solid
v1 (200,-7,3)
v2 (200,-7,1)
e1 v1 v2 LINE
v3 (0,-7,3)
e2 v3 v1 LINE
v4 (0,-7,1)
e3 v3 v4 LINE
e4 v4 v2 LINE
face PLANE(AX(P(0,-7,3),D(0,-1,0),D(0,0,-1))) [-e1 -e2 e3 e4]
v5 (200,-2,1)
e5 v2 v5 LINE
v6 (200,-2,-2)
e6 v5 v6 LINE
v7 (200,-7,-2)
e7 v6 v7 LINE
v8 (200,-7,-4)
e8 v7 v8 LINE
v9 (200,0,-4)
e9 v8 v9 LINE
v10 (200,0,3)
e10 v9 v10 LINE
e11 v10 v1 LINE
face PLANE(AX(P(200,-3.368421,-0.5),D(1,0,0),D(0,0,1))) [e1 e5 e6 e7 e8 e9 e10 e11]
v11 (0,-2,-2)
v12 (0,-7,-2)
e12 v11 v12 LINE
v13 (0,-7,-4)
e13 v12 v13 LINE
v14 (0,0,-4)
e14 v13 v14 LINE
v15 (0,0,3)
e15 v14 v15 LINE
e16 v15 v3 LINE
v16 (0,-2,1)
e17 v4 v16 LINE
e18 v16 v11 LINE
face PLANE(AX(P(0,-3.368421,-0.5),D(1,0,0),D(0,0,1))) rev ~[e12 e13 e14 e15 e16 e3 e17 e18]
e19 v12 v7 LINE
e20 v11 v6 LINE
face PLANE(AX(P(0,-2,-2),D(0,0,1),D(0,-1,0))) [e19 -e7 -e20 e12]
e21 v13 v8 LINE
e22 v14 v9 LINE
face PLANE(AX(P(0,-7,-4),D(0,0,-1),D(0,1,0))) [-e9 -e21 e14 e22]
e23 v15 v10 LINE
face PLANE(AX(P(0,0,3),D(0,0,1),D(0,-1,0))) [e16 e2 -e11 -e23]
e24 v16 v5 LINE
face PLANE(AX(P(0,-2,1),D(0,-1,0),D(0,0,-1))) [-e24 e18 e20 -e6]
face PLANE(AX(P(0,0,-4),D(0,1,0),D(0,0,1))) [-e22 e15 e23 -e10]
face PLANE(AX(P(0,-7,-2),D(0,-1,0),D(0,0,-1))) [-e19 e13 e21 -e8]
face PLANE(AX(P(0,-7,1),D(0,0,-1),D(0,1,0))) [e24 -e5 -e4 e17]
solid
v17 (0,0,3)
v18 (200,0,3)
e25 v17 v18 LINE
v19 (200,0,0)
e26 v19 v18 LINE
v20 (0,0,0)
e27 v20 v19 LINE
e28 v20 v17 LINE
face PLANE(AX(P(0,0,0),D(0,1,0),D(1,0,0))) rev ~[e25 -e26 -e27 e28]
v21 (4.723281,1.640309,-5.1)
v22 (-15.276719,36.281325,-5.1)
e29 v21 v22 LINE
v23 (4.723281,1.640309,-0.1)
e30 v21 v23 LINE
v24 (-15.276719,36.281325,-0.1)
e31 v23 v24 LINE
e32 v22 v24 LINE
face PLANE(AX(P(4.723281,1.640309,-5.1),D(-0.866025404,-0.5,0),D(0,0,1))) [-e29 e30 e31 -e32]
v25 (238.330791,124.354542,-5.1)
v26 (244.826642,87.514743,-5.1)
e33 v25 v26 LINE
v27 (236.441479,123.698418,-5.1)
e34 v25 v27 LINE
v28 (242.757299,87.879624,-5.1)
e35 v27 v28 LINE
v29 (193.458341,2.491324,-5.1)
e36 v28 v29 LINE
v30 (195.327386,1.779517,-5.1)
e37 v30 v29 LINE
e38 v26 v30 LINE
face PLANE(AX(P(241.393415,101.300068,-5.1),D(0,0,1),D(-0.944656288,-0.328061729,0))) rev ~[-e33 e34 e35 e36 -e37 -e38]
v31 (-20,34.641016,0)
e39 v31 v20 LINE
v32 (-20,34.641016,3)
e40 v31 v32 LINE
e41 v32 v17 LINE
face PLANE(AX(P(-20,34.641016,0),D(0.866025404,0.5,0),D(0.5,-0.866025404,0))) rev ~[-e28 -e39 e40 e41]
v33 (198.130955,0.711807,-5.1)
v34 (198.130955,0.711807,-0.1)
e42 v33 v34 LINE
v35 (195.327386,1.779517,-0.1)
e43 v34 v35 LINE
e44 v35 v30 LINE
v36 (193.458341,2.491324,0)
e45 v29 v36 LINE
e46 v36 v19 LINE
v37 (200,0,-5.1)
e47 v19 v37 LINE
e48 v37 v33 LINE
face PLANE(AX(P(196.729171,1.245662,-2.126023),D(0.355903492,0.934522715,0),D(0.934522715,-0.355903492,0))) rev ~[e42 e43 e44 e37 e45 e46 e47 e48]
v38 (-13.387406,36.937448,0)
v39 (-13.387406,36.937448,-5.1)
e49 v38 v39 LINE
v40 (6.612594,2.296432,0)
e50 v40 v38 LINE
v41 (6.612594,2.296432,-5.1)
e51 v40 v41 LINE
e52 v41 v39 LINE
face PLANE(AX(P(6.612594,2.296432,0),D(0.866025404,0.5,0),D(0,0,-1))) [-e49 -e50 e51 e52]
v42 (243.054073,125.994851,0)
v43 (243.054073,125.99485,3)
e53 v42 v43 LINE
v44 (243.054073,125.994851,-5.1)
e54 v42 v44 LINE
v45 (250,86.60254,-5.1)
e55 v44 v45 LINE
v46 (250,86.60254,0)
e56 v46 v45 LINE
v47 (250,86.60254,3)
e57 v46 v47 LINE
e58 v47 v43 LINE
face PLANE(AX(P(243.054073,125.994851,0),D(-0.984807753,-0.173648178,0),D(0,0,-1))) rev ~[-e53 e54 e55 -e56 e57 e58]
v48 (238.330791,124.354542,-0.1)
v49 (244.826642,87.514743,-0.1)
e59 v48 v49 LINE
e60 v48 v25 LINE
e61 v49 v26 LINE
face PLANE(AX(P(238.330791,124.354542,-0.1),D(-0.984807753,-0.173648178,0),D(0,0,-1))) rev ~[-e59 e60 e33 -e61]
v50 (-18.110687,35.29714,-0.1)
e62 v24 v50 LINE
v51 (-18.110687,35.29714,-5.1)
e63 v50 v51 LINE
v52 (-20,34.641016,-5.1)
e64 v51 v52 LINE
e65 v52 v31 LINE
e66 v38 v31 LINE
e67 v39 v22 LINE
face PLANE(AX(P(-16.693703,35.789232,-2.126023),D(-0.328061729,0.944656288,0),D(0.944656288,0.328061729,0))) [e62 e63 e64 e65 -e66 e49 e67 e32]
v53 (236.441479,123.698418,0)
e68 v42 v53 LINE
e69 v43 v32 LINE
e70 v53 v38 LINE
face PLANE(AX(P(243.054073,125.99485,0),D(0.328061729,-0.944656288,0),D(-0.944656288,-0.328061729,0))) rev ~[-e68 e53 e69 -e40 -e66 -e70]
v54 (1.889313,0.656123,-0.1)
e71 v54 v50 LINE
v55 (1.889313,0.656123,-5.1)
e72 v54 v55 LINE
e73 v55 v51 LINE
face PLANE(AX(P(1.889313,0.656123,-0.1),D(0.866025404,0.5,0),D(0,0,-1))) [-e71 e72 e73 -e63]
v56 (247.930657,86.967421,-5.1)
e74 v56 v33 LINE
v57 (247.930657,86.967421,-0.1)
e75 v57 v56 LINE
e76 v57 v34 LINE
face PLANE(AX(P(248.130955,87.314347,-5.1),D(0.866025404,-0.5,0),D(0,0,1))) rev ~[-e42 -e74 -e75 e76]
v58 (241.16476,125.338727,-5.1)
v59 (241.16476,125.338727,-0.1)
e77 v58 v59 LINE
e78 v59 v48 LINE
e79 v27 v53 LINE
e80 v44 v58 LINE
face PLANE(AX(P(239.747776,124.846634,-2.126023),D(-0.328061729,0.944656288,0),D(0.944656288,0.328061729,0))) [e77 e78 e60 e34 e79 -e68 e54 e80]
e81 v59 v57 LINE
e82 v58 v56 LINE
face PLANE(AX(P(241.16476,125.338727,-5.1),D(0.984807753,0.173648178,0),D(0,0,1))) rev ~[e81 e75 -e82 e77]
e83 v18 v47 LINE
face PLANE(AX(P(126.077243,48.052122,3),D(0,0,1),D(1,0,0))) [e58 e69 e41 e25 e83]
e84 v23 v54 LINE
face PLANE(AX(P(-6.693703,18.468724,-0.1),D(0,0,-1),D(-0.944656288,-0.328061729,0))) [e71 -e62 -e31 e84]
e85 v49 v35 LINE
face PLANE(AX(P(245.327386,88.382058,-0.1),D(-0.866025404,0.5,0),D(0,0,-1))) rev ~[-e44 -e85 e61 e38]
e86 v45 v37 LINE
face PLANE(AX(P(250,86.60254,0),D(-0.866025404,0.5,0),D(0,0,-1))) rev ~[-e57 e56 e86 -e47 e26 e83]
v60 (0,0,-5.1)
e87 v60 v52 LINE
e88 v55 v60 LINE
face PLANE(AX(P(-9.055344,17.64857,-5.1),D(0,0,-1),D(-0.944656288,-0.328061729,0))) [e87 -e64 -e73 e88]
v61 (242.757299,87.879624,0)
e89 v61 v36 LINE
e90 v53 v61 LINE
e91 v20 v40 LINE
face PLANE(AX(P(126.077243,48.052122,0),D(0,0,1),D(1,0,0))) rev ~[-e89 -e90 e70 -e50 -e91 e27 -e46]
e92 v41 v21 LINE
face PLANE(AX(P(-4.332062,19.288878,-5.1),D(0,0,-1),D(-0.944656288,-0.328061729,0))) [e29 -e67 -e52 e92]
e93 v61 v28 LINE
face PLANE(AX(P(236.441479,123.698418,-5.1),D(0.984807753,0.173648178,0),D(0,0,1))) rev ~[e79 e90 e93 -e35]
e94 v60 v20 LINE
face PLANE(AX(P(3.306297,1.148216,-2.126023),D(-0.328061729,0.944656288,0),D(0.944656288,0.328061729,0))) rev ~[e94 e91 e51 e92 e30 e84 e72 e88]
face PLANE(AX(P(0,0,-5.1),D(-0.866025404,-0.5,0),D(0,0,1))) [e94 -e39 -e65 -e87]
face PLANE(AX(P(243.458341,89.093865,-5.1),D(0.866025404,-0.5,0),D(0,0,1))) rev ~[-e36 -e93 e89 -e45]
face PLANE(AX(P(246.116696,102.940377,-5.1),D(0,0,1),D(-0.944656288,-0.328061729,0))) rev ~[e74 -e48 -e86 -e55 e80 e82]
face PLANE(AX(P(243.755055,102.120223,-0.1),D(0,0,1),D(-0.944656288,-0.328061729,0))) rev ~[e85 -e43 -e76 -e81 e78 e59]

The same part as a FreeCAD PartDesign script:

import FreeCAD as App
import Part
import Sketcher
from FreeCAD import Vector
Q = App.Units.Quantity


def add_polygon(sketch, points):
    """Adds a closed chain of lines whose ends are joined by coincident constraints."""
    first, n = sketch.GeometryCount, len(points)
    for a, b in zip(points, points[1:] + points[:1]):
        sketch.addGeometry(Part.LineSegment(App.Vector(*a, 0), App.Vector(*b, 0)), False)
    for i in range(n):
        sketch.addConstraint(Sketcher.Constraint("Coincident", first + i, 2, first + (i + 1) % n, 1))

doc = App.newDocument("Part")
body = doc.addObject("PartDesign::Body", "Body")

sketch1 = body.newObject("Sketcher::SketchObject", "Sketch")
sketch1.AttachmentSupport = (doc.getObject("XY_Plane"), [""])
sketch1.MapMode = "FlatFace"
add_polygon(sketch1, [(243, 126), (-20, 35), (0, 0), (200, 0), (250, 87)])
sketch1.addConstraint([
    Sketcher.Constraint("Horizontal", 2),
    Sketcher.Constraint("Coincident", 1, 2, -1, 1),
    Sketcher.Constraint("Equal", 1, 4),
    Sketcher.Constraint("DistanceX", 2, 1, 2, 2, 200.0),
    Sketcher.Constraint("Angle", 1, Q("-60 deg")),
    Sketcher.Constraint("Angle", 3, Q("60 deg")),
    Sketcher.Constraint("Angle", 4, Q("100 deg")),
    Sketcher.Constraint("Distance", 1, 40.0),
    Sketcher.Constraint("Distance", 3, 100.0),
])
pad1 = body.newObject("PartDesign::Pad", "Pad")
pad1.Profile = sketch1
pad1.Length = 3

sketch2 = body.newObject("Sketcher::SketchObject", "Sketch001")
sketch2.Placement = App.Placement(Vector(-12.887934, 37.110906, 0), App.Rotation(Vector(-0.944656288, -0.328061729, 0), Vector(0, 0, 1), Vector(-0.328061729, 0.944656288, 0), "ZXY"))
add_polygon(sketch2, [(7.5, -5.1), (7.5, 0), (0.5, 0), (0.5, -5.1), (2.5, -5.1), (2.5, -0.1), (5.5, -0.1), (5.5, -5.1)])
sketch2.addConstraint([
    Sketcher.Constraint("Vertical", 0),
    Sketcher.Constraint("Horizontal", 1),
    Sketcher.Constraint("Vertical", 2),
    Sketcher.Constraint("Horizontal", 3),
    Sketcher.Constraint("Vertical", 4),
    Sketcher.Constraint("Horizontal", 5),
    Sketcher.Constraint("Vertical", 6),
    Sketcher.Constraint("Horizontal", 7),
    Sketcher.Constraint("PointOnObject", 0, 2, -1),
    Sketcher.Constraint("Horizontal", 3, 2, 6, 2),
    Sketcher.Constraint("Equal", 3, 7),
    Sketcher.Constraint("DistanceX", 1, 2, 1, 1, 7.0),
    Sketcher.Constraint("DistanceX", 3, 1, 3, 2, 2.0),
    Sketcher.Constraint("DistanceY", 4, 1, 4, 2, 5.0),
    Sketcher.Constraint("DistanceY", 0, 1, 0, 2, 5.1),
    Sketcher.Constraint("DistanceX", -1, 1, 0, 2, 7.528734),
])

sketch3 = body.newObject("Sketcher::SketchObject", "Sketch002")
sketch3.Placement = App.Placement(Vector(0, 0, 0), App.Rotation(Vector(-0.5, 0.866025404, 0), Vector(0, 0, 1), Vector(0.866025404, 0.5, 0), "ZXY"))
sketch3.addGeometry(Part.LineSegment(Vector(0, 0, 0), Vector(40, 0, 0)), False)
sketch3.addConstraint([
    Sketcher.Constraint("Horizontal", 0),
    Sketcher.Constraint("Coincident", 0, 1, -1, 1),
    Sketcher.Constraint("DistanceX", 0, 1, 0, 2, 40.0),
])
doc.recompute()

additivepipe = body.newObject("PartDesign::AdditivePipe", "AdditivePipe")
additivepipe.Profile = sketch2
additivepipe.Spine = (sketch3, ["Edge1"])

sketch4 = body.newObject("Sketcher::SketchObject", "Sketch003")
sketch4.Placement = App.Placement(Vector(-12.887934, 37.110906, 0), App.Rotation(Vector(-0.944656288, -0.328061729, 0), Vector(0, 0, 1), Vector(-0.328061729, 0.944656288, 0), "ZXY"))
add_polygon(sketch4, [(-263.9, 0), (-270.9, 0), (-270.9, -5.1), (-268.9, -5.1), (-268.9, -0.1), (-265.9, -0.1), (-265.9, -5.1), (-263.9, -5.1)])
sketch4.addConstraint([
    Sketcher.Constraint("Horizontal", 0),
    Sketcher.Constraint("Vertical", 1),
    Sketcher.Constraint("Horizontal", 2),
    Sketcher.Constraint("Vertical", 3),
    Sketcher.Constraint("Horizontal", 4),
    Sketcher.Constraint("Vertical", 5),
    Sketcher.Constraint("Horizontal", 6),
    Sketcher.Constraint("Vertical", 7),
    Sketcher.Constraint("PointOnObject", 0, 2, -1),
    Sketcher.Constraint("Horizontal", 2, 2, 5, 2),
    Sketcher.Constraint("Equal", 2, 6),
    Sketcher.Constraint("DistanceX", 0, 2, 0, 1, 7.0),
    Sketcher.Constraint("DistanceX", 2, 1, 2, 2, 2.0),
    Sketcher.Constraint("DistanceY", 3, 1, 3, 2, 5.0),
    Sketcher.Constraint("DistanceY", 1, 2, 1, 1, 5.1),
    Sketcher.Constraint("DistanceX", 0, 2, -1, 1, 270.936647),
])

sketch5 = body.newObject("Sketcher::SketchObject", "Sketch004")
sketch5.AttachmentSupport = (doc.getObject("XY_Plane"), [""])
sketch5.MapMode = "FlatFace"
sketch5.addGeometry([
    Part.LineSegment(Vector(243, 126, 0), Vector(250, 87, 0)),
    Part.LineSegment(Vector(250, 87, 0), Vector(200, 0, 0)),
], False)
sketch5.addConstraint([
    Sketcher.Constraint("Coincident", 0, 2, 1, 1),
    Sketcher.Constraint("PointOnObject", 1, 2, -1),
    Sketcher.Constraint("Angle", 0, Q("-80 deg")),
    Sketcher.Constraint("Angle", 1, Q("-120 deg")),
    Sketcher.Constraint("Distance", 0, 40.0),
    Sketcher.Constraint("Distance", 1, 100.0),
    Sketcher.Constraint("DistanceX", -1, 1, 0, 2, 250.0),
])
doc.recompute()

additivepipe2 = body.newObject("PartDesign::AdditivePipe", "AdditivePipe001")
additivepipe2.Profile = sketch4
additivepipe2.Spine = (sketch5, ["Edge1", "Edge2"])
additivepipe2.Transition = "Right corner"
body2 = doc.addObject("PartDesign::Body", "Body001")

sketch6 = body2.newObject("Sketcher::SketchObject", "Sketch005")
sketch6.AttachmentSupport = (doc.getObject("YZ_Plane001"), [""])
sketch6.MapMode = "FlatFace"
add_polygon(sketch6, [(0, 3), (-7, 3), (-7, 1), (-2, 1), (-2, -2), (-7, -2), (-7, -4), (0, -4)])
sketch6.addConstraint([
    Sketcher.Constraint("Horizontal", 0),
    Sketcher.Constraint("Vertical", 1),
    Sketcher.Constraint("Horizontal", 2),
    Sketcher.Constraint("Vertical", 3),
    Sketcher.Constraint("Horizontal", 4),
    Sketcher.Constraint("Vertical", 5),
    Sketcher.Constraint("Horizontal", 6),
    Sketcher.Constraint("Vertical", 7),
    Sketcher.Constraint("PointOnObject", 6, 2, -2),
    Sketcher.Constraint("Vertical", 1, 2, 4, 2),
    Sketcher.Constraint("Equal", 1, 5),
    Sketcher.Constraint("Equal", 6, 7),
    Sketcher.Constraint("DistanceX", 0, 2, 0, 1, 7.0),
    Sketcher.Constraint("DistanceX", 2, 1, 2, 2, 5.0),
    Sketcher.Constraint("DistanceY", 1, 2, 1, 1, 2.0),
    Sketcher.Constraint("DistanceY", -1, 1, 0, 2, 3.0),
])

sketch7 = body2.newObject("Sketcher::SketchObject", "Sketch006")
sketch7.AttachmentSupport = (doc.getObject("XY_Plane001"), [""])
sketch7.MapMode = "FlatFace"
sketch7.AttachmentOffset = App.Placement(Vector(0, 0, 3), App.Rotation())
sketch7.addGeometry(Part.LineSegment(Vector(0, 0, 0), Vector(200, 0, 0)), False)
sketch7.addConstraint([
    Sketcher.Constraint("Horizontal", 0),
    Sketcher.Constraint("Coincident", 0, 1, -1, 1),
    Sketcher.Constraint("DistanceX", 0, 1, 0, 2, 200.0),
])
doc.recompute()

additivepipe3 = body2.newObject("PartDesign::AdditivePipe", "AdditivePipe002")
additivepipe3.Profile = sketch6
additivepipe3.Spine = (sketch7, ["Edge1"])

doc.recompute()
